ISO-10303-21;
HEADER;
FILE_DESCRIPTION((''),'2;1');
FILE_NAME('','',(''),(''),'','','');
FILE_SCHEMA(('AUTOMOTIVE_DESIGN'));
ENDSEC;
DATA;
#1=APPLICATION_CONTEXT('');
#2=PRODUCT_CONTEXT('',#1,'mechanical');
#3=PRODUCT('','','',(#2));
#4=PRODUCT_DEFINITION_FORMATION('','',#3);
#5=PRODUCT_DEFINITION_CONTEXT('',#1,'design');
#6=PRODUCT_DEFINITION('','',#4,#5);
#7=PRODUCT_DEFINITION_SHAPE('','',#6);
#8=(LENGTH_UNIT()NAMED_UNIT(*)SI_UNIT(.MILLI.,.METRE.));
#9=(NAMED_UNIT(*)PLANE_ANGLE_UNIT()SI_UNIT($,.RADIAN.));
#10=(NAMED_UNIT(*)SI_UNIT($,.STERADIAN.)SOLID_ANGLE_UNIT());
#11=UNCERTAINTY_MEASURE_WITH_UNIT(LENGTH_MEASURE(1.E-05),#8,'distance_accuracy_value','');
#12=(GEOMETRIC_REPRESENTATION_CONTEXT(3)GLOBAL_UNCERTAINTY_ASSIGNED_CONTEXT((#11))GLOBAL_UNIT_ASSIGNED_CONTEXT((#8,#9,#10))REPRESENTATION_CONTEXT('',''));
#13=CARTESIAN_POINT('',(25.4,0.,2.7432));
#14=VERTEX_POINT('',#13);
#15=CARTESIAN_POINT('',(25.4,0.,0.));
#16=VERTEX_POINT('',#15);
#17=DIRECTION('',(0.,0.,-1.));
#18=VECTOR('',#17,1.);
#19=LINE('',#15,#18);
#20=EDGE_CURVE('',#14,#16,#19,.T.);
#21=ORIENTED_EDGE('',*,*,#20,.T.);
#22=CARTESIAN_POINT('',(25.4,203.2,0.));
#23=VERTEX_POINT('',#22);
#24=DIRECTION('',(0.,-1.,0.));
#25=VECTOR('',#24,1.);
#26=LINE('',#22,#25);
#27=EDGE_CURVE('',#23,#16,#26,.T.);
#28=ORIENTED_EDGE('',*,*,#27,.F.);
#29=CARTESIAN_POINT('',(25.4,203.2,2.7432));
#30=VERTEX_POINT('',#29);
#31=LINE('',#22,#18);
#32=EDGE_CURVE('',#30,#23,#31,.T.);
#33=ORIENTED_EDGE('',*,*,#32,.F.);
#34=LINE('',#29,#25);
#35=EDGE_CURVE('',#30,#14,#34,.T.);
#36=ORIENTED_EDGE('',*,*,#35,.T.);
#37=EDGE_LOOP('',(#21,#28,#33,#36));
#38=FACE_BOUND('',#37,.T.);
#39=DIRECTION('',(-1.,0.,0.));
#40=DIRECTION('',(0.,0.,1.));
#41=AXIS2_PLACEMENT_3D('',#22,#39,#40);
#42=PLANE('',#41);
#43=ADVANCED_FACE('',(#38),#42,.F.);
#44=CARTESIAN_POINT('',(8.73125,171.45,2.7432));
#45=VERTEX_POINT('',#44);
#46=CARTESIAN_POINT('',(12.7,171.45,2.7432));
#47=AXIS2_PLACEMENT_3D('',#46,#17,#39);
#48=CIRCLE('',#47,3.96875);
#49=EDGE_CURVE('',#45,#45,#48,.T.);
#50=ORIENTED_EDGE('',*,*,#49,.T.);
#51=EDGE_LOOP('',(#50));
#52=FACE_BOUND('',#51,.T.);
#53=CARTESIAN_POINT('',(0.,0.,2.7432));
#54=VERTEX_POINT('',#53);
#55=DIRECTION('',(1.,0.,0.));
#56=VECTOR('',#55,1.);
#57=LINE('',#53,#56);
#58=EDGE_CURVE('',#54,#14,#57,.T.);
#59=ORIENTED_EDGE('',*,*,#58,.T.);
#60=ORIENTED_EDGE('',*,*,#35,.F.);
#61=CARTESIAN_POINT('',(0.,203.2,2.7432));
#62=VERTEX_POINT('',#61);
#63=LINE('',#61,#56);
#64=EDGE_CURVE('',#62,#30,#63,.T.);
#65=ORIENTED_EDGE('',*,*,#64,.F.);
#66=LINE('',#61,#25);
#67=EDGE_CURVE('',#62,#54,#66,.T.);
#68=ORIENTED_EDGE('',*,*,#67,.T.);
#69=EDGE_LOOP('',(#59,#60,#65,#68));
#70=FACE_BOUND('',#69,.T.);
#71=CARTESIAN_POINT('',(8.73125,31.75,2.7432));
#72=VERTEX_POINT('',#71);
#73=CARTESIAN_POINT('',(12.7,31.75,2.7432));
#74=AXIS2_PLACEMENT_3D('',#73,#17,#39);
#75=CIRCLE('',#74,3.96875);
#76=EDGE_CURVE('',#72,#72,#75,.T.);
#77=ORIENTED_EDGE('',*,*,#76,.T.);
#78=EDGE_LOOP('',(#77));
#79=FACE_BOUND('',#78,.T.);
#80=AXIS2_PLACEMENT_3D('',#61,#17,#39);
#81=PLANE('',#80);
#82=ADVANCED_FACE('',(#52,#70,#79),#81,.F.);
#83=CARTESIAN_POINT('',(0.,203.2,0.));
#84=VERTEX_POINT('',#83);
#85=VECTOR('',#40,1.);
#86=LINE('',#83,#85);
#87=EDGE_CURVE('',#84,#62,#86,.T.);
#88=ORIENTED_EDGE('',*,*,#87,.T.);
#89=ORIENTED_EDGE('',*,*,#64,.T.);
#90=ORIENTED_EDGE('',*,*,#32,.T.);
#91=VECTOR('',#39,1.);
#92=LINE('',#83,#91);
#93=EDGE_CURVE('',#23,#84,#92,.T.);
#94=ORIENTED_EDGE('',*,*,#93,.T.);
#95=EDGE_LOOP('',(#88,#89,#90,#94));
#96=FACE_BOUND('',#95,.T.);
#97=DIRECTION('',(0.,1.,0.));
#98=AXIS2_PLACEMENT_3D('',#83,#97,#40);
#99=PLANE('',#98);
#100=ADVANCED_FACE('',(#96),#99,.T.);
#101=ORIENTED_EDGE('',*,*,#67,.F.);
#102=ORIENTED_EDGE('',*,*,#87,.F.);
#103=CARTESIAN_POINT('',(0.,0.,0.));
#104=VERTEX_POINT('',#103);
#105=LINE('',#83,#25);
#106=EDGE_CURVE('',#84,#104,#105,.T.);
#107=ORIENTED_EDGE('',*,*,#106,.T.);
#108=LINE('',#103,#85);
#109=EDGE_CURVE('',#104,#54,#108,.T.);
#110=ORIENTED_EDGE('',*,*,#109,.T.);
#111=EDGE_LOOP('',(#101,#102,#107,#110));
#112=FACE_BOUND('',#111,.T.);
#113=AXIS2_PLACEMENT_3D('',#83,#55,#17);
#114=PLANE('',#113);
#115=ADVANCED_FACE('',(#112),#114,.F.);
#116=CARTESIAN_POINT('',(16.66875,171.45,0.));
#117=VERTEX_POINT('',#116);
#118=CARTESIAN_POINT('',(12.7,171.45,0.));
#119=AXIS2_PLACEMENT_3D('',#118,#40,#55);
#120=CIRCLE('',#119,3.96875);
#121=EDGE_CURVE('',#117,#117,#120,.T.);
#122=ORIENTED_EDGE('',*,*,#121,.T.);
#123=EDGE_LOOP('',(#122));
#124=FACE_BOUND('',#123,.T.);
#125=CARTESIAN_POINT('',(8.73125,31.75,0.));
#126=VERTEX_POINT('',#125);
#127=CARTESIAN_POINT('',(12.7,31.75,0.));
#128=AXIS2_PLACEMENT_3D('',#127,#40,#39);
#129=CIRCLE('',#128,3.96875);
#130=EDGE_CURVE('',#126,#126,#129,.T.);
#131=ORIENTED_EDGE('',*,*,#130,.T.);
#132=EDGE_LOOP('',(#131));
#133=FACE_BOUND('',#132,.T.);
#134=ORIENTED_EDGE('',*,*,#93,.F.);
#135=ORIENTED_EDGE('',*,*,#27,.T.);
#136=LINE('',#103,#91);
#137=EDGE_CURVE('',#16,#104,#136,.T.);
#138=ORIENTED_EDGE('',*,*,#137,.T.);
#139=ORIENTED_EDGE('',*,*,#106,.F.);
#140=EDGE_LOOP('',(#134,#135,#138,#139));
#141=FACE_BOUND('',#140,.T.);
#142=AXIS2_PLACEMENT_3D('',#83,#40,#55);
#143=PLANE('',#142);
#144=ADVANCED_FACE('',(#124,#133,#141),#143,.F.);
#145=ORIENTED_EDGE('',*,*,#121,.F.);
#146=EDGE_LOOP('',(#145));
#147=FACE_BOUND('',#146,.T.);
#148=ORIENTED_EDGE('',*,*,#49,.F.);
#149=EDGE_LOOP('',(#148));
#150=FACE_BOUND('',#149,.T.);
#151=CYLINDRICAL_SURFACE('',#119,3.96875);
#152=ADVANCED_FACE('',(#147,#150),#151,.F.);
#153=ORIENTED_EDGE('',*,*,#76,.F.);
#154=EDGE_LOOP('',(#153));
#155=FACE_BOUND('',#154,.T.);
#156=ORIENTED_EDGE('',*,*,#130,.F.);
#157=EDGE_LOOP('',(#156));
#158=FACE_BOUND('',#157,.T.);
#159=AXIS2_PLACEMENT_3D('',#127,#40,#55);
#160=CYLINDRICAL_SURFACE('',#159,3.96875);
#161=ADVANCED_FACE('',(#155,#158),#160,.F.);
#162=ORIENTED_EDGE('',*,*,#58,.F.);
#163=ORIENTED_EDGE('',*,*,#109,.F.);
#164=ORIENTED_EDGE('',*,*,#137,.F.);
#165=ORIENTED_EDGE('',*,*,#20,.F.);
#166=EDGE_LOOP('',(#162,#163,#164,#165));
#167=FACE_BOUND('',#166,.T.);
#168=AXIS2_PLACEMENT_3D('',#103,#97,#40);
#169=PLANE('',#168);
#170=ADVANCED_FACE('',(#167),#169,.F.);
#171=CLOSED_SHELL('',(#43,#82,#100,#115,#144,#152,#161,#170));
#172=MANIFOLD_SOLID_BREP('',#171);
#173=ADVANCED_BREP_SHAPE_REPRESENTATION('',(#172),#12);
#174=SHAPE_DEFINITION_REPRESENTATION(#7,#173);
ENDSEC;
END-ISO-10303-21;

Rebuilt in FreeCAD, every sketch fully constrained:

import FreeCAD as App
import Part
import Sketcher
from FreeCAD import Vector
Q = App.Units.Quantity

doc = App.newDocument("Part")
params = doc.addObject("Spreadsheet::Sheet", "Params")
for row, (alias, value) in enumerate([
    ("sketch1_width", "1 in"),
    ("sketch1_height", "0.108 in"),
    ("pad1_length", "8 in"),
    ("sketch2_diameter", "0.3125 in"),
], start=1):
    params.set(f"A{row}", alias)
    params.set(f"B{row}", "=" + value)
    params.setAlias(f"B{row}", alias)

body = doc.addObject("PartDesign::Body", "Body")

# Sketch on XZ plane
sketch1 = doc.addObject("Sketcher::SketchObject", "Sketch")
body.addObject(sketch1)
sketch1.AttachmentSupport = (doc.XZ_Plane, [""])
sketch1.MapMode = "FlatFace"
sketch1.addGeometry([
    Part.LineSegment(Vector(0, 0, 0), Vector(0, 2.7, 0)),
    Part.LineSegment(Vector(0, 2.7, 0), Vector(25.4, 2.7, 0)),
    Part.LineSegment(Vector(25.4, 2.7, 0), Vector(25.4, 0, 0)),
    Part.LineSegment(Vector(25.4, 0, 0), Vector(0, 0, 0)),
], False)
sketch1.addConstraint([
    Sketcher.Constraint("Coincident", 0, 2, 1, 1),
    Sketcher.Constraint("Coincident", 1, 2, 2, 1),
    Sketcher.Constraint("Coincident", 2, 2, 3, 1),
    Sketcher.Constraint("Coincident", 3, 2, 0, 1),
    Sketcher.Constraint("Vertical", 0),
    Sketcher.Constraint("Horizontal", 1),
    Sketcher.Constraint("Vertical", 2),
    Sketcher.Constraint("Horizontal", 3),
    Sketcher.Constraint("Coincident", 3, 2, -1, 1),
    Sketcher.Constraint("DistanceX", 1, 1, 1, 2, Q("1 in")),
    Sketcher.Constraint("DistanceY", 0, 1, 0, 2, Q("0.108 in")),
])
sketch1.setExpression("Constraints[9]", "Params.sketch1_width")
sketch1.setExpression("Constraints[10]", "Params.sketch1_height")
pad1 = doc.addObject("PartDesign::Pad", "Pad")
body.addObject(pad1)
pad1.Profile = sketch1
pad1.setExpression("Length", "Params.pad1_length")
pad1.Reversed = True

# Sketch on XY plane
sketch2 = doc.addObject("Sketcher::SketchObject", "Sketch001")
body.addObject(sketch2)
sketch2.AttachmentSupport = (doc.XY_Plane, [""])
sketch2.MapMode = "FlatFace"
sketch2.AttachmentOffset = App.Placement(Vector(0, 0, 0.233 * 25.4), App.Rotation())
sketch2.addGeometry([
    Part.Circle(Vector(12.7, 171.4, 0), Vector(0, 0, 1), 4),
    Part.Circle(Vector(12.7, 31.8, 0), Vector(0, 0, 1), 4),
], False)
sketch2.addConstraint([
    Sketcher.Constraint("Equal", 0, 1),
    Sketcher.Constraint("Vertical", 0, 3, 1, 3),
    Sketcher.Constraint("Diameter", 0, Q("0.3125 in")),
    Sketcher.Constraint("DistanceX", -1, 1, 0, 3, Q("0.5 in")),
    Sketcher.Constraint("DistanceY", 1, 3, 0, 3, Q("5.5 in")),
    Sketcher.Constraint("DistanceY", -1, 1, 0, 3, Q("6.75 in")),
])
sketch2.setExpression("Constraints[2]", "Params.sketch2_diameter")
pocket1 = doc.addObject("PartDesign::Pocket", "Pocket")
body.addObject(pocket1)
pocket1.Profile = sketch2
pocket1.Type = "ThroughAll"
pocket1.Midplane = True

doc.recompute()
